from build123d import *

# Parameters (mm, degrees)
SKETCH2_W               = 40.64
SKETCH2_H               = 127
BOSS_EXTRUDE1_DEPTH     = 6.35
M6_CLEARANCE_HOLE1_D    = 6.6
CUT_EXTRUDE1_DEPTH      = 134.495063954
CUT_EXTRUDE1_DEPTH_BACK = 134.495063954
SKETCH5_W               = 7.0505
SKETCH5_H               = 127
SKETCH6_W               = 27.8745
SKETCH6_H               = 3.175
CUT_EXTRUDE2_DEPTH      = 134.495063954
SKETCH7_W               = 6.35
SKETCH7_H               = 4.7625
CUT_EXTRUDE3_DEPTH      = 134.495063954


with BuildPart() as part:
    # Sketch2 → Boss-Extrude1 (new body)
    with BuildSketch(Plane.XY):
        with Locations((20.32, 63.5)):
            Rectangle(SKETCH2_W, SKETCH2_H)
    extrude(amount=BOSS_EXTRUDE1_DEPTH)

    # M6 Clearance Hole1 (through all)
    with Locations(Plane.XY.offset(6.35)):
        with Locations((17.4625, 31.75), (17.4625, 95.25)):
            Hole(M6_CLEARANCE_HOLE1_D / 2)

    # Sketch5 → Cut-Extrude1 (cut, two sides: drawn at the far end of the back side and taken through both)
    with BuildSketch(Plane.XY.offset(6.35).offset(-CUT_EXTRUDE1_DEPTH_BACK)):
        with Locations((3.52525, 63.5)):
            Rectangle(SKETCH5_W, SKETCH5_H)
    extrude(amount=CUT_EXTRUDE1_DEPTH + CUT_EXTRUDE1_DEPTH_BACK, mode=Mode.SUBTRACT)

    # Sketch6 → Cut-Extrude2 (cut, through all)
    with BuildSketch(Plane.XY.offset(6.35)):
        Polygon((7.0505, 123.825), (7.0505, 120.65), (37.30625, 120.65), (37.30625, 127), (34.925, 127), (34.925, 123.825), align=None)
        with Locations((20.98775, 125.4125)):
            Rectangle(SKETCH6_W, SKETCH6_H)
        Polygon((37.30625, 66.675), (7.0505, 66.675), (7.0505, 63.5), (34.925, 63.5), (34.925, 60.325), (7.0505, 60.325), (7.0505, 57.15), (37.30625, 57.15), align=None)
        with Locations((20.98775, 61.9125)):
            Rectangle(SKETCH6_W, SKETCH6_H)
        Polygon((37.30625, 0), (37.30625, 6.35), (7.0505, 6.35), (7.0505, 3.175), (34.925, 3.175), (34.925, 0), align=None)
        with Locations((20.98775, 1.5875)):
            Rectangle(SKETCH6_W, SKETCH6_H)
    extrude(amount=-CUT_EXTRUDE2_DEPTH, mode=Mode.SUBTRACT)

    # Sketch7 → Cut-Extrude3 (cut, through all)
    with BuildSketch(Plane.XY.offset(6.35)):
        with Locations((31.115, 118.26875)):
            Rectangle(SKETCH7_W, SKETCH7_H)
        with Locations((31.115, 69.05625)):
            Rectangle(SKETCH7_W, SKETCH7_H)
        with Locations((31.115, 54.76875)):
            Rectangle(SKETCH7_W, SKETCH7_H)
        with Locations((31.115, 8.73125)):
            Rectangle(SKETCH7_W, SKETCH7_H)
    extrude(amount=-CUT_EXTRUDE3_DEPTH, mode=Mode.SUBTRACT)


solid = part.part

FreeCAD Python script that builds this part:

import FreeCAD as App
import Part
import Sketcher

V = App.Vector
Q = App.Units.Quantity

doc = App.newDocument("Part")
body = doc.addObject("PartDesign::Body", "Body")

# Sketch on XY plane
sketch1 = body.newObject("Sketcher::SketchObject", "Sketch")
sketch1.AttachmentSupport = (doc.getObject("XY_Plane"), [""])
sketch1.MapMode = "FlatFace"
sketch1.addGeometry(Part.LineSegment(V(0, 127, 0), V(0, 0, 0)), False)
sketch1.addGeometry(Part.LineSegment(V(0, 0, 0), V(41, 0, 0)), False)
sketch1.addGeometry(Part.LineSegment(V(41, 0, 0), V(41, 127, 0)), False)
sketch1.addGeometry(Part.LineSegment(V(41, 127, 0), V(0, 127, 0)), False)
sketch1.addConstraint(Sketcher.Constraint("Coincident", 0, 2, 1, 1))
sketch1.addConstraint(Sketcher.Constraint("Coincident", 1, 2, 2, 1))
sketch1.addConstraint(Sketcher.Constraint("Coincident", 2, 2, 3, 1))
sketch1.addConstraint(Sketcher.Constraint("Coincident", 3, 2, 0, 1))
sketch1.addConstraint(Sketcher.Constraint("Vertical", 0))
sketch1.addConstraint(Sketcher.Constraint("Horizontal", 1))
sketch1.addConstraint(Sketcher.Constraint("Vertical", 2))
sketch1.addConstraint(Sketcher.Constraint("Horizontal", 3))
sketch1.addConstraint(Sketcher.Constraint("Coincident", 0, 2, -1, 1))
sketch1.addConstraint(Sketcher.Constraint("DistanceY", 0, 2, 0, 1, Q("5 in")))
sketch1.addConstraint(Sketcher.Constraint("DistanceX", 1, 1, 1, 2, Q("1.6 in")))
pad1 = body.newObject("PartDesign::Pad", "Pad")
pad1.Profile = sketch1
pad1.Length = Q("0.25 in")

# Sketch on XY plane
sketch2 = body.newObject("Sketcher::SketchObject", "Sketch001")
sketch2.AttachmentSupport = (doc.getObject("XY_Plane"), [""])
sketch2.MapMode = "FlatFace"
sketch2.AttachmentOffset = App.Placement(V(0, 0, 0.25 * 25.4), App.Rotation())
sketch2.addGeometry(Part.Circle(V(17.5, 31.8, 0), V(0, 0, 1), 3.3), False)
sketch2.addGeometry(Part.Circle(V(17.5, 95.2, 0), V(0, 0, 1), 3.3), False)
sketch2.addConstraint(Sketcher.Constraint("Equal", 0, 1))
sketch2.addConstraint(Sketcher.Constraint("Vertical", 0, 3, 1, 3))
sketch2.addConstraint(Sketcher.Constraint("DistanceY", 0, 3, 1, 3, Q("2.5 in")))
sketch2.addConstraint(Sketcher.Constraint("Diameter", 0, 6.6))
sketch2.addConstraint(Sketcher.Constraint("DistanceY", -1, 1, 0, 3, Q("1.25 in")))
sketch2.addConstraint(Sketcher.Constraint("DistanceX", -1, 1, 0, 3, Q("0.6875 in")))
doc.recompute()
hole = body.newObject("PartDesign::Hole", "Hole")
hole.Profile = sketch2
hole.ThreadType = "None"
hole.Diameter = 6.6
hole.DepthType = "ThroughAll"

# Sketch on XY plane
sketch3 = body.newObject("Sketcher::SketchObject", "Sketch002")
sketch3.AttachmentSupport = (doc.getObject("XY_Plane"), [""])
sketch3.MapMode = "FlatFace"
sketch3.AttachmentOffset = App.Placement(V(0, 0, 0.25 * 25.4), App.Rotation())
sketch3.addGeometry(Part.LineSegment(V(0, 127, 0), V(0, 0, 0)), False)
sketch3.addGeometry(Part.LineSegment(V(0, 0, 0), V(7, 0, 0)), False)
sketch3.addGeometry(Part.LineSegment(V(7, 0, 0), V(7, 127, 0)), False)
sketch3.addGeometry(Part.LineSegment(V(7, 127, 0), V(0, 127, 0)), False)
sketch3.addConstraint(Sketcher.Constraint("Coincident", 0, 2, 1, 1))
sketch3.addConstraint(Sketcher.Constraint("Coincident", 1, 2, 2, 1))
sketch3.addConstraint(Sketcher.Constraint("Coincident", 2, 2, 3, 1))
sketch3.addConstraint(Sketcher.Constraint("Coincident", 3, 2, 0, 1))
sketch3.addConstraint(Sketcher.Constraint("Vertical", 0))
sketch3.addConstraint(Sketcher.Constraint("Horizontal", 1))
sketch3.addConstraint(Sketcher.Constraint("Vertical", 2))
sketch3.addConstraint(Sketcher.Constraint("Horizontal", 3))
sketch3.addConstraint(Sketcher.Constraint("Coincident", 0, 2, -1, 1))
sketch3.addConstraint(Sketcher.Constraint("DistanceY", 0, 2, 0, 1, Q("5 in")))
sketch3.addConstraint(Sketcher.Constraint("DistanceX", 1, 1, 1, 2, 7.0505))
pocket1 = body.newObject("PartDesign::Pocket", "Pocket")
pocket1.Profile = sketch3
pocket1.Type = "ThroughAll"
pocket1.Midplane = True

# Sketch on XY plane
sketch4 = body.newObject("Sketcher::SketchObject", "Sketch003")
sketch4.AttachmentSupport = (doc.getObject("XY_Plane"), [""])
sketch4.MapMode = "FlatFace"
sketch4.AttachmentOffset = App.Placement(V(0, 0, 0.25 * 25.4), App.Rotation())
sketch4.addGeometry(Part.LineSegment(V(7, 121, 0), V(37, 121, 0)), False)
sketch4.addGeometry(Part.LineSegment(V(37, 121, 0), V(37, 127, 0)), False)
sketch4.addGeometry(Part.LineSegment(V(37, 127, 0), V(7, 127, 0)), False)
sketch4.addGeometry(Part.LineSegment(V(7, 127, 0), V(7, 121, 0)), False)
sketch4.addGeometry(Part.LineSegment(V(37, 67, 0), V(7, 67, 0)), False)
sketch4.addGeometry(Part.LineSegment(V(7, 67, 0), V(7, 57, 0)), False)
sketch4.addGeometry(Part.LineSegment(V(7, 57, 0), V(37, 57, 0)), False)
sketch4.addGeometry(Part.LineSegment(V(37, 57, 0), V(37, 67, 0)), False)
sketch4.addGeometry(Part.LineSegment(V(37, 0, 0), V(37, 6, 0)), False)
sketch4.addGeometry(Part.LineSegment(V(37, 6, 0), V(7, 6, 0)), False)
sketch4.addGeometry(Part.LineSegment(V(7, 6, 0), V(7, 0, 0)), False)
sketch4.addGeometry(Part.LineSegment(V(7, 0, 0), V(37, 0, 0)), False)
sketch4.addConstraint(Sketcher.Constraint("Coincident", 0, 2, 1, 1))
sketch4.addConstraint(Sketcher.Constraint("Coincident", 1, 2, 2, 1))
sketch4.addConstraint(Sketcher.Constraint("Coincident", 2, 2, 3, 1))
sketch4.addConstraint(Sketcher.Constraint("Coincident", 3, 2, 0, 1))
sketch4.addConstraint(Sketcher.Constraint("Coincident", 4, 2, 5, 1))
sketch4.addConstraint(Sketcher.Constraint("Coincident", 5, 2, 6, 1))
sketch4.addConstraint(Sketcher.Constraint("Coincident", 6, 2, 7, 1))
sketch4.addConstraint(Sketcher.Constraint("Coincident", 7, 2, 4, 1))
sketch4.addConstraint(Sketcher.Constraint("Coincident", 8, 2, 9, 1))
sketch4.addConstraint(Sketcher.Constraint("Coincident", 9, 2, 10, 1))
sketch4.addConstraint(Sketcher.Constraint("Coincident", 10, 2, 11, 1))
sketch4.addConstraint(Sketcher.Constraint("Coincident", 11, 2, 8, 1))
sketch4.addConstraint(Sketcher.Constraint("Horizontal", 0))
sketch4.addConstraint(Sketcher.Constraint("Vertical", 1))
sketch4.addConstraint(Sketcher.Constraint("Horizontal", 2))
sketch4.addConstraint(Sketcher.Constraint("Vertical", 3))
sketch4.addConstraint(Sketcher.Constraint("Horizontal", 4))
sketch4.addConstraint(Sketcher.Constraint("Vertical", 5))
sketch4.addConstraint(Sketcher.Constraint("Horizontal", 6))
sketch4.addConstraint(Sketcher.Constraint("Vertical", 7))
sketch4.addConstraint(Sketcher.Constraint("Vertical", 8))
sketch4.addConstraint(Sketcher.Constraint("Horizontal", 9))
sketch4.addConstraint(Sketcher.Constraint("Vertical", 10))
sketch4.addConstraint(Sketcher.Constraint("Horizontal", 11))
sketch4.addConstraint(Sketcher.Constraint("PointOnObject", 10, 2, -1))
sketch4.addConstraint(Sketcher.Constraint("Vertical", 3, 2, 4, 2))
sketch4.addConstraint(Sketcher.Constraint("Vertical", 1, 2, 6, 2))
sketch4.addConstraint(Sketcher.Constraint("Vertical", 7, 2, 8, 2))
sketch4.addConstraint(Sketcher.Constraint("Vertical", 5, 2, 9, 2))
sketch4.addConstraint(Sketcher.Constraint("Equal", 3, 8))
sketch4.addConstraint(Sketcher.Constraint("DistanceY", -1, 1, 1, 2, Q("5 in")))
sketch4.addConstraint(Sketcher.Constraint("DistanceY", 8, 2, 6, 2, Q("2 in")))
sketch4.addConstraint(Sketcher.Constraint("DistanceY", 1, 1, 1, 2, Q("0.25 in")))
sketch4.addConstraint(Sketcher.Constraint("DistanceY", 5, 2, 5, 1, Q("0.375 in")))
sketch4.addConstraint(Sketcher.Constraint("DistanceX", -1, 1, 0, 2, Q("1.46875 in")))
sketch4.addConstraint(Sketcher.Constraint("DistanceX", 0, 1, 0, 2, 30.25575))
pocket2 = body.newObject("PartDesign::Pocket", "Pocket001")
pocket2.Profile = sketch4
pocket2.Type = "ThroughAll"

# Sketch on XY plane
sketch5 = body.newObject("Sketcher::SketchObject", "Sketch004")
sketch5.AttachmentSupport = (doc.getObject("XY_Plane"), [""])
sketch5.MapMode = "FlatFace"
sketch5.AttachmentOffset = App.Placement(V(0, 0, 0.25 * 25.4), App.Rotation())
sketch5.addGeometry(Part.LineSegment(V(27.9, 120.7, 0), V(27.9, 115.9, 0)), False)
sketch5.addGeometry(Part.LineSegment(V(27.9, 115.9, 0), V(34.3, 115.9, 0)), False)
sketch5.addGeometry(Part.LineSegment(V(34.3, 115.9, 0), V(34.3, 120.7, 0)), False)
sketch5.addGeometry(Part.LineSegment(V(34.3, 120.7, 0), V(27.9, 120.7, 0)), False)
sketch5.addGeometry(Part.LineSegment(V(27.9, 71.4, 0), V(27.9, 66.7, 0)), False)
sketch5.addGeometry(Part.LineSegment(V(27.9, 66.7, 0), V(34.3, 66.7, 0)), False)
sketch5.addGeometry(Part.LineSegment(V(34.3, 66.7, 0), V(34.3, 71.4, 0)), False)
sketch5.addGeometry(Part.LineSegment(V(34.3, 71.4, 0), V(27.9, 71.4, 0)), False)
sketch5.addGeometry(Part.LineSegment(V(27.9, 57.1, 0), V(27.9, 52.4, 0)), False)
sketch5.addGeometry(Part.LineSegment(V(27.9, 52.4, 0), V(34.3, 52.4, 0)), False)
sketch5.addGeometry(Part.LineSegment(V(34.3, 52.4, 0), V(34.3, 57.1, 0)), False)
sketch5.addGeometry(Part.LineSegment(V(34.3, 57.1, 0), V(27.9, 57.1, 0)), False)
sketch5.addGeometry(Part.LineSegment(V(27.9, 11.1, 0), V(27.9, 6.3, 0)), False)
sketch5.addGeometry(Part.LineSegment(V(27.9, 6.3, 0), V(34.3, 6.3, 0)), False)
sketch5.addGeometry(Part.LineSegment(V(34.3, 6.3, 0), V(34.3, 11.1, 0)), False)
sketch5.addGeometry(Part.LineSegment(V(34.3, 11.1, 0), V(27.9, 11.1, 0)), False)
sketch5.addConstraint(Sketcher.Constraint("Coincident", 0, 2, 1, 1))
sketch5.addConstraint(Sketcher.Constraint("Coincident", 1, 2, 2, 1))
sketch5.addConstraint(Sketcher.Constraint("Coincident", 2, 2, 3, 1))
sketch5.addConstraint(Sketcher.Constraint("Coincident", 3, 2, 0, 1))
sketch5.addConstraint(Sketcher.Constraint("Coincident", 4, 2, 5, 1))
sketch5.addConstraint(Sketcher.Constraint("Coincident", 5, 2, 6, 1))
sketch5.addConstraint(Sketcher.Constraint("Coincident", 6, 2, 7, 1))
sketch5.addConstraint(Sketcher.Constraint("Coincident", 7, 2, 4, 1))
sketch5.addConstraint(Sketcher.Constraint("Coincident", 8, 2, 9, 1))
sketch5.addConstraint(Sketcher.Constraint("Coincident", 9, 2, 10, 1))
sketch5.addConstraint(Sketcher.Constraint("Coincident", 10, 2, 11, 1))
sketch5.addConstraint(Sketcher.Constraint("Coincident", 11, 2, 8, 1))
sketch5.addConstraint(Sketcher.Constraint("Coincident", 12, 2, 13, 1))
sketch5.addConstraint(Sketcher.Constraint("Coincident", 13, 2, 14, 1))
sketch5.addConstraint(Sketcher.Constraint("Coincident", 14, 2, 15, 1))
sketch5.addConstraint(Sketcher.Constraint("Coincident", 15, 2, 12, 1))
sketch5.addConstraint(Sketcher.Constraint("Vertical", 0))
sketch5.addConstraint(Sketcher.Constraint("Horizontal", 1))
sketch5.addConstraint(Sketcher.Constraint("Vertical", 2))
sketch5.addConstraint(Sketcher.Constraint("Horizontal", 3))
sketch5.addConstraint(Sketcher.Constraint("Vertical", 4))
sketch5.addConstraint(Sketcher.Constraint("Horizontal", 5))
sketch5.addConstraint(Sketcher.Constraint("Vertical", 6))
sketch5.addConstraint(Sketcher.Constraint("Horizontal", 7))
sketch5.addConstraint(Sketcher.Constraint("Vertical", 8))
sketch5.addConstraint(Sketcher.Constraint("Horizontal", 9))
sketch5.addConstraint(Sketcher.Constraint("Vertical", 10))
sketch5.addConstraint(Sketcher.Constraint("Horizontal", 11))
sketch5.addConstraint(Sketcher.Constraint("Vertical", 12))
sketch5.addConstraint(Sketcher.Constraint("Horizontal", 13))
sketch5.addConstraint(Sketcher.Constraint("Vertical", 14))
sketch5.addConstraint(Sketcher.Constraint("Horizontal", 15))
sketch5.addConstraint(Sketcher.Constraint("Vertical", 3, 2, 4, 2))
sketch5.addConstraint(Sketcher.Constraint("Vertical", 2, 2, 5, 2))
sketch5.addConstraint(Sketcher.Constraint("Vertical", 7, 2, 8, 2))
sketch5.addConstraint(Sketcher.Constraint("Vertical", 6, 2, 9, 2))
sketch5.addConstraint(Sketcher.Constraint("Vertical", 11, 2, 12, 2))
sketch5.addConstraint(Sketcher.Constraint("Vertical", 10, 2, 13, 2))
sketch5.addConstraint(Sketcher.Constraint("Equal", 2, 4))
sketch5.addConstraint(Sketcher.Constraint("Equal", 6, 8))
sketch5.addConstraint(Sketcher.Constraint("Equal", 10, 12))
sketch5.addConstraint(Sketcher.Constraint("DistanceY", 12, 2, 11, 2, Q("2 in")))
sketch5.addConstraint(Sketcher.Constraint("DistanceX", 1, 1, 1, 2, Q("0.25 in")))
sketch5.addConstraint(Sketcher.Constraint("DistanceX", -1, 1, 0, 2, Q("1.1 in")))
sketch5.addConstraint(Sketcher.Constraint("DistanceY", 8, 2, 0, 2, Q("2.5 in")))
sketch5.addConstraint(Sketcher.Constraint("DistanceY", 0, 2, 0, 1, Q("0.1875 in")))
sketch5.addConstraint(Sketcher.Constraint("DistanceY", -1, 1, 2, 2, Q("4.75 in")))
sketch5.addConstraint(Sketcher.Constraint("DistanceY", 6, 2, 1, 2, Q("1.75 in")))
pocket3 = body.newObject("PartDesign::Pocket", "Pocket002")
pocket3.Profile = sketch5
pocket3.Type = "ThroughAll"

doc.recompute()
